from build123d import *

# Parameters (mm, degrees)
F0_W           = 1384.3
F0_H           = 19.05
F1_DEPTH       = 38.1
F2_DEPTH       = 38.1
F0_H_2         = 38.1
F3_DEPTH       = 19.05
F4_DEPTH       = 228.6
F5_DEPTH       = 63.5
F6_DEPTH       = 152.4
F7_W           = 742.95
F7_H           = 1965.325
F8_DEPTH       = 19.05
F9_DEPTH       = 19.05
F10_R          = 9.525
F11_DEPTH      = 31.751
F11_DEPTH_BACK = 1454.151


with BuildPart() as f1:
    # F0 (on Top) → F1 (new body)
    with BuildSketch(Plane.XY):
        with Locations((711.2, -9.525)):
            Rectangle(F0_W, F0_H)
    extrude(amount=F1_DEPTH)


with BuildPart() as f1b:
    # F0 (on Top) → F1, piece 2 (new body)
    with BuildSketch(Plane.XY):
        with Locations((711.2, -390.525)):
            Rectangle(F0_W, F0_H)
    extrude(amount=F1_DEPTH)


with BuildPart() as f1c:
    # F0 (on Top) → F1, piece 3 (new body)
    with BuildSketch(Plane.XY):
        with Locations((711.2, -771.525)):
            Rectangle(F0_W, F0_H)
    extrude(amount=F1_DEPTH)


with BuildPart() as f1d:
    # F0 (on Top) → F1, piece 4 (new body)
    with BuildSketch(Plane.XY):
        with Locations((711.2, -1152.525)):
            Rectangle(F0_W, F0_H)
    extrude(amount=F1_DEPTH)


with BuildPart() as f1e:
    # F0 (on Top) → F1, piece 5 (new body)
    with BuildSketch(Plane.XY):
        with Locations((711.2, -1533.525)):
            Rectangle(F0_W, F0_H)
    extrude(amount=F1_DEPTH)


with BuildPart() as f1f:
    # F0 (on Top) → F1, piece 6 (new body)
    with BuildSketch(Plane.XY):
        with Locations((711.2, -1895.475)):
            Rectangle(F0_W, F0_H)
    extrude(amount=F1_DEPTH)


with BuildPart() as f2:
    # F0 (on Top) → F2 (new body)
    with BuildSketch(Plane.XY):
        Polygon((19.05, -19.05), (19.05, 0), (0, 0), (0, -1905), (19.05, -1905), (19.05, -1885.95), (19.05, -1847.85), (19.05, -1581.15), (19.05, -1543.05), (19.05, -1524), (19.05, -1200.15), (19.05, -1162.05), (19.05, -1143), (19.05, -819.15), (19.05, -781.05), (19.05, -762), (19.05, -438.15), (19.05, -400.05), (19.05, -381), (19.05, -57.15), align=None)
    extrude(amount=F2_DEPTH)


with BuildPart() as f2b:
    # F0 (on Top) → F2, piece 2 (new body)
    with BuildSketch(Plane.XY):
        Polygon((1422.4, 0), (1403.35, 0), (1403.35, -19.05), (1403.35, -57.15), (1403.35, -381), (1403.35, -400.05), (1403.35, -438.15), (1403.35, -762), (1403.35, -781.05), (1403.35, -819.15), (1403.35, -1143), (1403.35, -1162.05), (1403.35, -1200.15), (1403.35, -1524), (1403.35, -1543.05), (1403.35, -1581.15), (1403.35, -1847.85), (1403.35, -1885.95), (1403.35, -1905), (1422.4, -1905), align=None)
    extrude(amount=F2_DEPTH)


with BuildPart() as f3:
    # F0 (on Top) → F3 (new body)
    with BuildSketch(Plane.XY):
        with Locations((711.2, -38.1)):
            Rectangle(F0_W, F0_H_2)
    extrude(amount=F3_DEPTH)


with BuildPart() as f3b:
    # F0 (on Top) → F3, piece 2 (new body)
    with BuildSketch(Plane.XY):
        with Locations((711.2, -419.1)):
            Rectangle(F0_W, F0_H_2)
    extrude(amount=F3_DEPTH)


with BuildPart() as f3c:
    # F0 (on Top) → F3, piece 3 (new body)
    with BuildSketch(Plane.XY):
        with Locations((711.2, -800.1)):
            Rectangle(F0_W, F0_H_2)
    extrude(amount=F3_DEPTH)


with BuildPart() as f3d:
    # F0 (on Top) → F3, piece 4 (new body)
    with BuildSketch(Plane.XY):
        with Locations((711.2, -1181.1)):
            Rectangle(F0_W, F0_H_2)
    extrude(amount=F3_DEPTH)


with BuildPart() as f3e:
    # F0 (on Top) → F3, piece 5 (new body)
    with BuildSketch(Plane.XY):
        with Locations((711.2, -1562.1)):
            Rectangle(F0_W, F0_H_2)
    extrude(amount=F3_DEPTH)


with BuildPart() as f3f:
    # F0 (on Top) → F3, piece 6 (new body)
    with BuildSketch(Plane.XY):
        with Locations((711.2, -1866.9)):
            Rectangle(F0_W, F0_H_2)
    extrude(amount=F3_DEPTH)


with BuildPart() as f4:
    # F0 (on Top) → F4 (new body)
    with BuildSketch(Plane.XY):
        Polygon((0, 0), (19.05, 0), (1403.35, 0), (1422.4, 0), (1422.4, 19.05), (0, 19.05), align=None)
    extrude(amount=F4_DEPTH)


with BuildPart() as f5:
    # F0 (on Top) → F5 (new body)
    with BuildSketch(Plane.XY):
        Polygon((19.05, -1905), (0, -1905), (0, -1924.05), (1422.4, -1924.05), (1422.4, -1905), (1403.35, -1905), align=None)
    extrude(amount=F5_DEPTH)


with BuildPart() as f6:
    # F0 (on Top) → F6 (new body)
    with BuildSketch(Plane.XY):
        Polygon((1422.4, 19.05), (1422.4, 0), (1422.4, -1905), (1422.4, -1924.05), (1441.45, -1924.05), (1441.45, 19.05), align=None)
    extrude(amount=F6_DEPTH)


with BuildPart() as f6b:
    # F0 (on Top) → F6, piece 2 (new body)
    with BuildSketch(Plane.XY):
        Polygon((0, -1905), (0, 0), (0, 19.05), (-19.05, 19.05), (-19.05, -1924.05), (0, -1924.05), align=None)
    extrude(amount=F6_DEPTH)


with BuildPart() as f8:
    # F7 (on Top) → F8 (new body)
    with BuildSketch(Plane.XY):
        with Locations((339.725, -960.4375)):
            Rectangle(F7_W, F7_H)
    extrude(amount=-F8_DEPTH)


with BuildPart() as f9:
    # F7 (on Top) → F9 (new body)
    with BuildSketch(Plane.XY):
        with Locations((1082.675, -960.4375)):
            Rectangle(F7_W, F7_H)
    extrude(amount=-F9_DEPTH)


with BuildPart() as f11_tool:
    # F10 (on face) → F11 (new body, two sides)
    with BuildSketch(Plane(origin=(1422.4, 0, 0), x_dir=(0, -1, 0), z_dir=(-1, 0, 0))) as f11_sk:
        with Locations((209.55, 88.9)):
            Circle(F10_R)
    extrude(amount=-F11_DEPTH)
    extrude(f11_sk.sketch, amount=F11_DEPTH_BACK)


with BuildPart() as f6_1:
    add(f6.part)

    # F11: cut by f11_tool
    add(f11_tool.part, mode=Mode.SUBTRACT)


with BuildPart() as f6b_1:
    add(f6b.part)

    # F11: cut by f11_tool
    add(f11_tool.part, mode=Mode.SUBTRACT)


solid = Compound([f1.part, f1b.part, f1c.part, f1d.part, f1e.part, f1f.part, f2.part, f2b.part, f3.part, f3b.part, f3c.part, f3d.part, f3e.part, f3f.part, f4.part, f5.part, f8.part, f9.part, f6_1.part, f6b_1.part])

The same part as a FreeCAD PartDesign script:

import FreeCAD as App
import Part
import Sketcher
from FreeCAD import Vector
Q = App.Units.Quantity

doc = App.newDocument("Part")
params = doc.addObject("Spreadsheet::Sheet", "Params")
for row, (alias, value) in enumerate([
    ("sketch1_width", "54.5 in"),
    ("sketch1_height", "0.75 in"),
    ("pad1_length", "1.5 in"),
    ("sketch2_width", "54.5 in"),
    ("sketch2_height", "0.75 in"),
    ("pad2_length", "1.5 in"),
    ("sketch3_width", "54.5 in"),
    ("sketch3_height", "0.75 in"),
    ("pad3_length", "1.5 in"),
    ("sketch4_width", "54.5 in"),
    ("sketch4_height", "0.75 in"),
    ("pad4_length", "1.5 in"),
    ("sketch5_width", "54.5 in"),
    ("sketch5_height", "0.75 in"),
    ("pad5_length", "1.5 in"),
    ("sketch6_width", "54.5 in"),
    ("sketch6_height", "0.75 in"),
    ("pad6_length", "1.5 in"),
    ("sketch7_height", "75 in"),
    ("sketch7_width", "0.75 in"),
    ("pad7_length", "1.5 in"),
    ("sketch8_height", "75 in"),
    ("sketch8_width", "0.75 in"),
    ("pad8_length", "1.5 in"),
    ("sketch9_width", "54.5 in"),
    ("sketch9_height", "1.5 in"),
    ("pad9_length", "0.75 in"),
    ("sketch10_width", "54.5 in"),
    ("sketch10_height", "1.5 in"),
    ("pad10_length", "0.75 in"),
    ("sketch11_width", "54.5 in"),
    ("sketch11_height", "1.5 in"),
    ("pad11_length", "0.75 in"),
    ("sketch12_width", "54.5 in"),
    ("sketch12_height", "1.5 in"),
    ("pad12_length", "0.75 in"),
    ("sketch13_width", "54.5 in"),
    ("sketch13_height", "1.5 in"),
    ("pad13_length", "0.75 in"),
    ("sketch14_width", "54.5 in"),
    ("sketch14_height", "1.5 in"),
    ("pad14_length", "0.75 in"),
    ("sketch15_width", "56 in"),
    ("sketch15_height", "0.75 in"),
    ("pad15_length", "9 in"),
    ("sketch16_width", "56 in"),
    ("sketch16_height", "0.75 in"),
    ("pad16_length", "2.5 in"),
    ("sketch17_height", "76.5 in"),
    ("sketch17_width", "0.75 in"),
    ("pad17_length", "6 in"),
    ("sketch18_height", "76.5 in"),
    ("sketch18_width", "0.75 in"),
    ("pad18_length", "6 in"),
    ("sketch19_width", "29.25 in"),
    ("sketch19_height", "77.375 in"),
    ("pad19_length", "0.75 in"),
    ("sketch20_width", "29.25 in"),
    ("sketch20_height", "77.375 in"),
    ("pad20_length", "0.75 in"),
    ("sketch21_diameter", "0.75 in"),
    ("pad21_length", "31.751 mm"),
    ("pad21_length2", "1454.151 mm"),
], start=1):
    params.set(f"A{row}", alias)
    params.set(f"B{row}", "=" + value)
    params.setAlias(f"B{row}", alias)

body = doc.addObject("PartDesign::Body", "Body")

# Sketch on XY plane
sketch1 = body.newObject("Sketcher::SketchObject", "Sketch")
sketch1.AttachmentSupport = (doc.getObject("XY_Plane"), [""])
sketch1.MapMode = "FlatFace"
sketch1.addGeometry(Part.LineSegment(Vector(19, 0, 0), Vector(19, -19, 0)), False)
sketch1.addGeometry(Part.LineSegment(Vector(19, -19, 0), Vector(1403, -19, 0)), False)
sketch1.addGeometry(Part.LineSegment(Vector(1403, -19, 0), Vector(1403, 0, 0)), False)
sketch1.addGeometry(Part.LineSegment(Vector(1403, 0, 0), Vector(19, 0, 0)), False)
sketch1.addConstraint(Sketcher.Constraint("Coincident", 0, 2, 1, 1))
sketch1.addConstraint(Sketcher.Constraint("Coincident", 1, 2, 2, 1))
sketch1.addConstraint(Sketcher.Constraint("Coincident", 2, 2, 3, 1))
sketch1.addConstraint(Sketcher.Constraint("Coincident", 3, 2, 0, 1))
sketch1.addConstraint(Sketcher.Constraint("Vertical", 0))
sketch1.addConstraint(Sketcher.Constraint("Horizontal", 1))
sketch1.addConstraint(Sketcher.Constraint("Vertical", 2))
sketch1.addConstraint(Sketcher.Constraint("Horizontal", 3))
sketch1.addConstraint(Sketcher.Constraint("PointOnObject", 2, 2, -1))
sketch1.addConstraint(Sketcher.Constraint("DistanceX", 1, 1, 1, 2, Q("54.5 in")))
sketch1.addConstraint(Sketcher.Constraint("DistanceY", 0, 2, 0, 1, Q("0.75 in")))
sketch1.addConstraint(Sketcher.Constraint("DistanceX", -1, 1, 0, 2, Q("0.75 in")))
sketch1.setExpression("Constraints[9]", "Params.sketch1_width")
sketch1.setExpression("Constraints[10]", "Params.sketch1_height")
pad1 = body.newObject("PartDesign::Pad", "Pad")
pad1.Profile = sketch1
pad1.setExpression("Length", "Params.pad1_length")
body2 = doc.addObject("PartDesign::Body", "Body001")

# Sketch on XY plane
sketch2 = body2.newObject("Sketcher::SketchObject", "Sketch001")
sketch2.AttachmentSupport = (doc.getObject("XY_Plane001"), [""])
sketch2.MapMode = "FlatFace"
sketch2.addGeometry(Part.LineSegment(Vector(19, -381, 0), Vector(19, -400, 0)), False)
sketch2.addGeometry(Part.LineSegment(Vector(19, -400, 0), Vector(1403, -400, 0)), False)
sketch2.addGeometry(Part.LineSegment(Vector(1403, -400, 0), Vector(1403, -381, 0)), False)
sketch2.addGeometry(Part.LineSegment(Vector(1403, -381, 0), Vector(19, -381, 0)), False)
sketch2.addConstraint(Sketcher.Constraint("Coincident", 0, 2, 1, 1))
sketch2.addConstraint(Sketcher.Constraint("Coincident", 1, 2, 2, 1))
sketch2.addConstraint(Sketcher.Constraint("Coincident", 2, 2, 3, 1))
sketch2.addConstraint(Sketcher.Constraint("Coincident", 3, 2, 0, 1))
sketch2.addConstraint(Sketcher.Constraint("Vertical", 0))
sketch2.addConstraint(Sketcher.Constraint("Horizontal", 1))
sketch2.addConstraint(Sketcher.Constraint("Vertical", 2))
sketch2.addConstraint(Sketcher.Constraint("Horizontal", 3))
sketch2.addConstraint(Sketcher.Constraint("DistanceX", 1, 1, 1, 2, Q("54.5 in")))
sketch2.addConstraint(Sketcher.Constraint("DistanceY", 2, 2, -1, 1, Q("15 in")))
sketch2.addConstraint(Sketcher.Constraint("DistanceY", 0, 2, 0, 1, Q("0.75 in")))
sketch2.addConstraint(Sketcher.Constraint("DistanceX", -1, 1, 0, 2, Q("0.75 in")))
sketch2.setExpression("Constraints[8]", "Params.sketch2_width")
sketch2.setExpression("Constraints[10]", "Params.sketch2_height")
pad2 = body2.newObject("PartDesign::Pad", "Pad001")
pad2.Profile = sketch2
pad2.setExpression("Length", "Params.pad2_length")
body3 = doc.addObject("PartDesign::Body", "Body002")

# Sketch on XY plane
sketch3 = body3.newObject("Sketcher::SketchObject", "Sketch002")
sketch3.AttachmentSupport = (doc.getObject("XY_Plane002"), [""])
sketch3.MapMode = "FlatFace"
sketch3.addGeometry(Part.LineSegment(Vector(19, -762, 0), Vector(19, -781, 0)), False)
sketch3.addGeometry(Part.LineSegment(Vector(19, -781, 0), Vector(1403, -781, 0)), False)
sketch3.addGeometry(Part.LineSegment(Vector(1403, -781, 0), Vector(1403, -762, 0)), False)
sketch3.addGeometry(Part.LineSegment(Vector(1403, -762, 0), Vector(19, -762, 0)), False)
sketch3.addConstraint(Sketcher.Constraint("Coincident", 0, 2, 1, 1))
sketch3.addConstraint(Sketcher.Constraint("Coincident", 1, 2, 2, 1))
sketch3.addConstraint(Sketcher.Constraint("Coincident", 2, 2, 3, 1))
sketch3.addConstraint(Sketcher.Constraint("Coincident", 3, 2, 0, 1))
sketch3.addConstraint(Sketcher.Constraint("Vertical", 0))
sketch3.addConstraint(Sketcher.Constraint("Horizontal", 1))
sketch3.addConstraint(Sketcher.Constraint("Vertical", 2))
sketch3.addConstraint(Sketcher.Constraint("Horizontal", 3))
sketch3.addConstraint(Sketcher.Constraint("DistanceX", 1, 1, 1, 2, Q("54.5 in")))
sketch3.addConstraint(Sketcher.Constraint("DistanceY", 2, 2, -1, 1, Q("30 in")))
sketch3.addConstraint(Sketcher.Constraint("DistanceY", 0, 2, 0, 1, Q("0.75 in")))
sketch3.addConstraint(Sketcher.Constraint("DistanceX", -1, 1, 0, 2, Q("0.75 in")))
sketch3.setExpression("Constraints[8]", "Params.sketch3_width")
sketch3.setExpression("Constraints[10]", "Params.sketch3_height")
pad3 = body3.newObject("PartDesign::Pad", "Pad002")
pad3.Profile = sketch3
pad3.setExpression("Length", "Params.pad3_length")
body4 = doc.addObject("PartDesign::Body", "Body003")

# Sketch on XY plane
sketch4 = body4.newObject("Sketcher::SketchObject", "Sketch003")
sketch4.AttachmentSupport = (doc.getObject("XY_Plane003"), [""])
sketch4.MapMode = "FlatFace"
sketch4.addGeometry(Part.LineSegment(Vector(19, -1143, 0), Vector(19, -1162, 0)), False)
sketch4.addGeometry(Part.LineSegment(Vector(19, -1162, 0), Vector(1403, -1162, 0)), False)
sketch4.addGeometry(Part.LineSegment(Vector(1403, -1162, 0), Vector(1403, -1143, 0)), False)
sketch4.addGeometry(Part.LineSegment(Vector(1403, -1143, 0), Vector(19, -1143, 0)), False)
sketch4.addConstraint(Sketcher.Constraint("Coincident", 0, 2, 1, 1))
sketch4.addConstraint(Sketcher.Constraint("Coincident", 1, 2, 2, 1))
sketch4.addConstraint(Sketcher.Constraint("Coincident", 2, 2, 3, 1))
sketch4.addConstraint(Sketcher.Constraint("Coincident", 3, 2, 0, 1))
sketch4.addConstraint(Sketcher.Constraint("Vertical", 0))
sketch4.addConstraint(Sketcher.Constraint("Horizontal", 1))
sketch4.addConstraint(Sketcher.Constraint("Vertical", 2))
sketch4.addConstraint(Sketcher.Constraint("Horizontal", 3))
sketch4.addConstraint(Sketcher.Constraint("DistanceX", 1, 1, 1, 2, Q("54.5 in")))
sketch4.addConstraint(Sketcher.Constraint("DistanceY", 2, 2, -1, 1, Q("45 in")))
sketch4.addConstraint(Sketcher.Constraint("DistanceY", 0, 2, 0, 1, Q("0.75 in")))
sketch4.addConstraint(Sketcher.Constraint("DistanceX", -1, 1, 0, 2, Q("0.75 in")))
sketch4.setExpression("Constraints[8]", "Params.sketch4_width")
sketch4.setExpression("Constraints[10]", "Params.sketch4_height")
pad4 = body4.newObject("PartDesign::Pad", "Pad003")
pad4.Profile = sketch4
pad4.setExpression("Length", "Params.pad4_length")
body5 = doc.addObject("PartDesign::Body", "Body004")

# Sketch on XY plane
sketch5 = body5.newObject("Sketcher::SketchObject", "Sketch004")
sketch5.AttachmentSupport = (doc.getObject("XY_Plane004"), [""])
sketch5.MapMode = "FlatFace"
sketch5.addGeometry(Part.LineSegment(Vector(19, -1524, 0), Vector(19, -1543, 0)), False)
sketch5.addGeometry(Part.LineSegment(Vector(19, -1543, 0), Vector(1403, -1543, 0)), False)
sketch5.addGeometry(Part.LineSegment(Vector(1403, -1543, 0), Vector(1403, -1524, 0)), False)
sketch5.addGeometry(Part.LineSegment(Vector(1403, -1524, 0), Vector(19, -1524, 0)), False)
sketch5.addConstraint(Sketcher.Constraint("Coincident", 0, 2, 1, 1))
sketch5.addConstraint(Sketcher.Constraint("Coincident", 1, 2, 2, 1))
sketch5.addConstraint(Sketcher.Constraint("Coincident", 2, 2, 3, 1))
sketch5.addConstraint(Sketcher.Constraint("Coincident", 3, 2, 0, 1))
sketch5.addConstraint(Sketcher.Constraint("Vertical", 0))
sketch5.addConstraint(Sketcher.Constraint("Horizontal", 1))
sketch5.addConstraint(Sketcher.Constraint("Vertical", 2))
sketch5.addConstraint(Sketcher.Constraint("Horizontal", 3))
sketch5.addConstraint(Sketcher.Constraint("DistanceX", 1, 1, 1, 2, Q("54.5 in")))
sketch5.addConstraint(Sketcher.Constraint("DistanceY", 2, 2, -1, 1, Q("60 in")))
sketch5.addConstraint(Sketcher.Constraint("DistanceY", 0, 2, 0, 1, Q("0.75 in")))
sketch5.addConstraint(Sketcher.Constraint("DistanceX", -1, 1, 0, 2, Q("0.75 in")))
sketch5.setExpression("Constraints[8]", "Params.sketch5_width")
sketch5.setExpression("Constraints[10]", "Params.sketch5_height")
pad5 = body5.newObject("PartDesign::Pad", "Pad004")
pad5.Profile = sketch5
pad5.setExpression("Length", "Params.pad5_length")
body6 = doc.addObject("PartDesign::Body", "Body005")

# Sketch on XY plane
sketch6 = body6.newObject("Sketcher::SketchObject", "Sketch005")
sketch6.AttachmentSupport = (doc.getObject("XY_Plane005"), [""])
sketch6.MapMode = "FlatFace"
sketch6.addGeometry(Part.LineSegment(Vector(19, -1886, 0), Vector(19, -1905, 0)), False)
sketch6.addGeometry(Part.LineSegment(Vector(19, -1905, 0), Vector(1403, -1905, 0)), False)
sketch6.addGeometry(Part.LineSegment(Vector(1403, -1905, 0), Vector(1403, -1886, 0)), False)
sketch6.addGeometry(Part.LineSegment(Vector(1403, -1886, 0), Vector(19, -1886, 0)), False)
sketch6.addConstraint(Sketcher.Constraint("Coincident", 0, 2, 1, 1))
sketch6.addConstraint(Sketcher.Constraint("Coincident", 1, 2, 2, 1))
sketch6.addConstraint(Sketcher.Constraint("Coincident", 2, 2, 3, 1))
sketch6.addConstraint(Sketcher.Constraint("Coincident", 3, 2, 0, 1))
sketch6.addConstraint(Sketcher.Constraint("Vertical", 0))
sketch6.addConstraint(Sketcher.Constraint("Horizontal", 1))
sketch6.addConstraint(Sketcher.Constraint("Vertical", 2))
sketch6.addConstraint(Sketcher.Constraint("Horizontal", 3))
sketch6.addConstraint(Sketcher.Constraint("DistanceX", 1, 1, 1, 2, Q("54.5 in")))
sketch6.addConstraint(Sketcher.Constraint("DistanceY", 0, 2, -1, 1, Q("75 in")))
sketch6.addConstraint(Sketcher.Constraint("DistanceY", 0, 2, 0, 1, Q("0.75 in")))
sketch6.addConstraint(Sketcher.Constraint("DistanceX", -1, 1, 0, 2, Q("0.75 in")))
sketch6.setExpression("Constraints[8]", "Params.sketch6_width")
sketch6.setExpression("Constraints[10]", "Params.sketch6_height")
pad6 = body6.newObject("PartDesign::Pad", "Pad005")
pad6.Profile = sketch6
pad6.setExpression("Length", "Params.pad6_length")
body7 = doc.addObject("PartDesign::Body", "Body006")

# Sketch on XY plane
sketch7 = body7.newObject("Sketcher::SketchObject", "Sketch006")
sketch7.AttachmentSupport = (doc.getObject("XY_Plane006"), [""])
sketch7.MapMode = "FlatFace"
sketch7.addGeometry(Part.LineSegment(Vector(19, 0, 0), Vector(0, 0, 0)), False)
sketch7.addGeometry(Part.LineSegment(Vector(0, 0, 0), Vector(0, -1905, 0)), False)
sketch7.addGeometry(Part.LineSegment(Vector(0, -1905, 0), Vector(19, -1905, 0)), False)
sketch7.addGeometry(Part.LineSegment(Vector(19, -1905, 0), Vector(19, 0, 0)), False)
sketch7.addConstraint(Sketcher.Constraint("Coincident", 0, 2, 1, 1))
sketch7.addConstraint(Sketcher.Constraint("Coincident", 1, 2, 2, 1))
sketch7.addConstraint(Sketcher.Constraint("Coincident", 2, 2, 3, 1))
sketch7.addConstraint(Sketcher.Constraint("Coincident", 3, 2, 0, 1))
sketch7.addConstraint(Sketcher.Constraint("Horizontal", 0))
sketch7.addConstraint(Sketcher.Constraint("Vertical", 1))
sketch7.addConstraint(Sketcher.Constraint("Horizontal", 2))
sketch7.addConstraint(Sketcher.Constraint("Vertical", 3))
sketch7.addConstraint(Sketcher.Constraint("Coincident", 0, 2, -1, 1))
sketch7.addConstraint(Sketcher.Constraint("DistanceY", 1, 2, 1, 1, Q("75 in")))
sketch7.addConstraint(Sketcher.Constraint("DistanceX", 0, 2, 0, 1, Q("0.75 in")))
sketch7.setExpression("Constraints[9]", "Params.sketch7_height")
sketch7.setExpression("Constraints[10]", "Params.sketch7_width")
pad7 = body7.newObject("PartDesign::Pad", "Pad006")
pad7.Profile = sketch7
pad7.setExpression("Length", "Params.pad7_length")
body8 = doc.addObject("PartDesign::Body", "Body007")

# Sketch on XY plane
sketch8 = body8.newObject("Sketcher::SketchObject", "Sketch007")
sketch8.AttachmentSupport = (doc.getObject("XY_Plane007"), [""])
sketch8.MapMode = "FlatFace"
sketch8.addGeometry(Part.LineSegment(Vector(1422, 0, 0), Vector(1403, 0, 0)), False)
sketch8.addGeometry(Part.LineSegment(Vector(1403, 0, 0), Vector(1403, -1905, 0)), False)
sketch8.addGeometry(Part.LineSegment(Vector(1403, -1905, 0), Vector(1422, -1905, 0)), False)
sketch8.addGeometry(Part.LineSegment(Vector(1422, -1905, 0), Vector(1422, 0, 0)), False)
sketch8.addConstraint(Sketcher.Constraint("Coincident", 0, 2, 1, 1))
sketch8.addConstraint(Sketcher.Constraint("Coincident", 1, 2, 2, 1))
sketch8.addConstraint(Sketcher.Constraint("Coincident", 2, 2, 3, 1))
sketch8.addConstraint(Sketcher.Constraint("Coincident", 3, 2, 0, 1))
sketch8.addConstraint(Sketcher.Constraint("Horizontal", 0))
sketch8.addConstraint(Sketcher.Constraint("Vertical", 1))
sketch8.addConstraint(Sketcher.Constraint("Horizontal", 2))
sketch8.addConstraint(Sketcher.Constraint("Vertical", 3))
sketch8.addConstraint(Sketcher.Constraint("PointOnObject", 0, 2, -1))
sketch8.addConstraint(Sketcher.Constraint("DistanceY", 1, 2, 1, 1, Q("75 in")))
sketch8.addConstraint(Sketcher.Constraint("DistanceX", -1, 1, 2, 2, Q("56 in")))
sketch8.addConstraint(Sketcher.Constraint("DistanceX", 0, 2, 0, 1, Q("0.75 in")))
sketch8.setExpression("Constraints[9]", "Params.sketch8_height")
sketch8.setExpression("Constraints[11]", "Params.sketch8_width")
pad8 = body8.newObject("PartDesign::Pad", "Pad007")
pad8.Profile = sketch8
pad8.setExpression("Length", "Params.pad8_length")
body9 = doc.addObject("PartDesign::Body", "Body008")

# Sketch on XY plane
sketch9 = body9.newObject("Sketcher::SketchObject", "Sketch008")
sketch9.AttachmentSupport = (doc.getObject("XY_Plane008"), [""])
sketch9.MapMode = "FlatFace"
sketch9.addGeometry(Part.LineSegment(Vector(19, -19, 0), Vector(19, -57, 0)), False)
sketch9.addGeometry(Part.LineSegment(Vector(19, -57, 0), Vector(1403, -57, 0)), False)
sketch9.addGeometry(Part.LineSegment(Vector(1403, -57, 0), Vector(1403, -19, 0)), False)
sketch9.addGeometry(Part.LineSegment(Vector(1403, -19, 0), Vector(19, -19, 0)), False)
sketch9.addConstraint(Sketcher.Constraint("Coincident", 0, 2, 1, 1))
sketch9.addConstraint(Sketcher.Constraint("Coincident", 1, 2, 2, 1))
sketch9.addConstraint(Sketcher.Constraint("Coincident", 2, 2, 3, 1))
sketch9.addConstraint(Sketcher.Constraint("Coincident", 3, 2, 0, 1))
sketch9.addConstraint(Sketcher.Constraint("Vertical", 0))
sketch9.addConstraint(Sketcher.Constraint("Horizontal", 1))
sketch9.addConstraint(Sketcher.Constraint("Vertical", 2))
sketch9.addConstraint(Sketcher.Constraint("Horizontal", 3))
sketch9.addConstraint(Sketcher.Constraint("DistanceX", 1, 1, 1, 2, Q("54.5 in")))
sketch9.addConstraint(Sketcher.Constraint("DistanceY", 0, 2, 0, 1, Q("1.5 in")))
sketch9.addConstraint(Sketcher.Constraint("DistanceX", -1, 1, 0, 2, Q("0.75 in")))
sketch9.addConstraint(Sketcher.Constraint("DistanceY", 0, 2, -1, 1, Q("2.25 in")))
sketch9.setExpression("Constraints[8]", "Params.sketch9_width")
sketch9.setExpression("Constraints[9]", "Params.sketch9_height")
pad9 = body9.newObject("PartDesign::Pad", "Pad008")
pad9.Profile = sketch9
pad9.setExpression("Length", "Params.pad9_length")
body10 = doc.addObject("PartDesign::Body", "Body009")

# Sketch on XY plane
sketch10 = body10.newObject("Sketcher::SketchObject", "Sketch009")
sketch10.AttachmentSupport = (doc.getObject("XY_Plane009"), [""])
sketch10.MapMode = "FlatFace"
sketch10.addGeometry(Part.LineSegment(Vector(19, -400, 0), Vector(19, -438, 0)), False)
sketch10.addGeometry(Part.LineSegment(Vector(19, -438, 0), Vector(1403, -438, 0)), False)
sketch10.addGeometry(Part.LineSegment(Vector(1403, -438, 0), Vector(1403, -400, 0)), False)
sketch10.addGeometry(Part.LineSegment(Vector(1403, -400, 0), Vector(19, -400, 0)), False)
sketch10.addConstraint(Sketcher.Constraint("Coincident", 0, 2, 1, 1))
sketch10.addConstraint(Sketcher.Constraint("Coincident", 1, 2, 2, 1))
sketch10.addConstraint(Sketcher.Constraint("Coincident", 2, 2, 3, 1))
sketch10.addConstraint(Sketcher.Constraint("Coincident", 3, 2, 0, 1))
sketch10.addConstraint(Sketcher.Constraint("Vertical", 0))
sketch10.addConstraint(Sketcher.Constraint("Horizontal", 1))
sketch10.addConstraint(Sketcher.Constraint("Vertical", 2))
sketch10.addConstraint(Sketcher.Constraint("Horizontal", 3))
sketch10.addConstraint(Sketcher.Constraint("DistanceX", 1, 1, 1, 2, Q("54.5 in")))
sketch10.addConstraint(Sketcher.Constraint("DistanceY", 0, 2, 0, 1, Q("1.5 in")))
sketch10.addConstraint(Sketcher.Constraint("DistanceX", -1, 1, 0, 2, Q("0.75 in")))
sketch10.addConstraint(Sketcher.Constraint("DistanceY", 0, 2, -1, 1, Q("17.25 in")))
sketch10.setExpression("Constraints[8]", "Params.sketch10_width")
sketch10.setExpression("Constraints[9]", "Params.sketch10_height")
pad10 = body10.newObject("PartDesign::Pad", "Pad009")
pad10.Profile = sketch10
pad10.setExpression("Length", "Params.pad10_length")
body11 = doc.addObject("PartDesign::Body", "Body010")

# Sketch on XY plane
sketch11 = body11.newObject("Sketcher::SketchObject", "Sketch010")
sketch11.AttachmentSupport = (doc.getObject("XY_Plane010"), [""])
sketch11.MapMode = "FlatFace"
sketch11.addGeometry(Part.LineSegment(Vector(19, -781, 0), Vector(19, -819, 0)), False)
sketch11.addGeometry(Part.LineSegment(Vector(19, -819, 0), Vector(1403, -819, 0)), False)
sketch11.addGeometry(Part.LineSegment(Vector(1403, -819, 0), Vector(1403, -781, 0)), False)
sketch11.addGeometry(Part.LineSegment(Vector(1403, -781, 0), Vector(19, -781, 0)), False)
sketch11.addConstraint(Sketcher.Constraint("Coincident", 0, 2, 1, 1))
sketch11.addConstraint(Sketcher.Constraint("Coincident", 1, 2, 2, 1))
sketch11.addConstraint(Sketcher.Constraint("Coincident", 2, 2, 3, 1))
sketch11.addConstraint(Sketcher.Constraint("Coincident", 3, 2, 0, 1))
sketch11.addConstraint(Sketcher.Constraint("Vertical", 0))
sketch11.addConstraint(Sketcher.Constraint("Horizontal", 1))
sketch11.addConstraint(Sketcher.Constraint("Vertical", 2))
sketch11.addConstraint(Sketcher.Constraint("Horizontal", 3))
sketch11.addConstraint(Sketcher.Constraint("DistanceX", 1, 1, 1, 2, Q("54.5 in")))
sketch11.addConstraint(Sketcher.Constraint("DistanceY", 0, 2, 0, 1, Q("1.5 in")))
sketch11.addConstraint(Sketcher.Constraint("DistanceX", -1, 1, 0, 2, Q("0.75 in")))
sketch11.addConstraint(Sketcher.Constraint("DistanceY", 0, 2, -1, 1, Q("32.25 in")))
sketch11.setExpression("Constraints[8]", "Params.sketch11_width")
sketch11.setExpression("Constraints[9]", "Params.sketch11_height")
pad11 = body11.newObject("PartDesign::Pad", "Pad010")
pad11.Profile = sketch11
pad11.setExpression("Length", "Params.pad11_length")
body12 = doc.addObject("PartDesign::Body", "Body011")

# Sketch on XY plane
sketch12 = body12.newObject("Sketcher::SketchObject", "Sketch011")
sketch12.AttachmentSupport = (doc.getObject("XY_Plane011"), [""])
sketch12.MapMode = "FlatFace"
sketch12.addGeometry(Part.LineSegment(Vector(19, -1162, 0), Vector(19, -1200, 0)), False)
sketch12.addGeometry(Part.LineSegment(Vector(19, -1200, 0), Vector(1403, -1200, 0)), False)
sketch12.addGeometry(Part.LineSegment(Vector(1403, -1200, 0), Vector(1403, -1162, 0)), False)
sketch12.addGeometry(Part.LineSegment(Vector(1403, -1162, 0), Vector(19, -1162, 0)), False)
sketch12.addConstraint(Sketcher.Constraint("Coincident", 0, 2, 1, 1))
sketch12.addConstraint(Sketcher.Constraint("Coincident", 1, 2, 2, 1))
sketch12.addConstraint(Sketcher.Constraint("Coincident", 2, 2, 3, 1))
sketch12.addConstraint(Sketcher.Constraint("Coincident", 3, 2, 0, 1))
sketch12.addConstraint(Sketcher.Constraint("Vertical", 0))
sketch12.addConstraint(Sketcher.Constraint("Horizontal", 1))
sketch12.addConstraint(Sketcher.Constraint("Vertical", 2))
sketch12.addConstraint(Sketcher.Constraint("Horizontal", 3))
sketch12.addConstraint(Sketcher.Constraint("DistanceX", 1, 1, 1, 2, Q("54.5 in")))
sketch12.addConstraint(Sketcher.Constraint("DistanceY", 0, 2, 0, 1, Q("1.5 in")))
sketch12.addConstraint(Sketcher.Constraint("DistanceX", -1, 1, 0, 2, Q("0.75 in")))
sketch12.addConstraint(Sketcher.Constraint("DistanceY", 0, 2, -1, 1, Q("47.25 in")))
sketch12.setExpression("Constraints[8]", "Params.sketch12_width")
sketch12.setExpression("Constraints[9]", "Params.sketch12_height")
pad12 = body12.newObject("PartDesign::Pad", "Pad011")
pad12.Profile = sketch12
pad12.setExpression("Length", "Params.pad12_length")
body13 = doc.addObject("PartDesign::Body", "Body012")

# Sketch on XY plane
sketch13 = body13.newObject("Sketcher::SketchObject", "Sketch012")
sketch13.AttachmentSupport = (doc.getObject("XY_Plane012"), [""])
sketch13.MapMode = "FlatFace"
sketch13.addGeometry(Part.LineSegment(Vector(19, -1543, 0), Vector(19, -1581, 0)), False)
sketch13.addGeometry(Part.LineSegment(Vector(19, -1581, 0), Vector(1403, -1581, 0)), False)
sketch13.addGeometry(Part.LineSegment(Vector(1403, -1581, 0), Vector(1403, -1543, 0)), False)
sketch13.addGeometry(Part.LineSegment(Vector(1403, -1543, 0), Vector(19, -1543, 0)), False)
sketch13.addConstraint(Sketcher.Constraint("Coincident", 0, 2, 1, 1))
sketch13.addConstraint(Sketcher.Constraint("Coincident", 1, 2, 2, 1))
sketch13.addConstraint(Sketcher.Constraint("Coincident", 2, 2, 3, 1))
sketch13.addConstraint(Sketcher.Constraint("Coincident", 3, 2, 0, 1))
sketch13.addConstraint(Sketcher.Constraint("Vertical", 0))
sketch13.addConstraint(Sketcher.Constraint("Horizontal", 1))
sketch13.addConstraint(Sketcher.Constraint("Vertical", 2))
sketch13.addConstraint(Sketcher.Constraint("Horizontal", 3))
sketch13.addConstraint(Sketcher.Constraint("DistanceX", 1, 1, 1, 2, Q("54.5 in")))
sketch13.addConstraint(Sketcher.Constraint("DistanceY", 0, 2, 0, 1, Q("1.5 in")))
sketch13.addConstraint(Sketcher.Constraint("DistanceX", -1, 1, 0, 2, Q("0.75 in")))
sketch13.addConstraint(Sketcher.Constraint("DistanceY", 0, 2, -1, 1, Q("62.25 in")))
sketch13.setExpression("Constraints[8]", "Params.sketch13_width")
sketch13.setExpression("Constraints[9]", "Params.sketch13_height")
pad13 = body13.newObject("PartDesign::Pad", "Pad012")
pad13.Profile = sketch13
pad13.setExpression("Length", "Params.pad13_length")
body14 = doc.addObject("PartDesign::Body", "Body013")

# Sketch on XY plane
sketch14 = body14.newObject("Sketcher::SketchObject", "Sketch013")
sketch14.AttachmentSupport = (doc.getObject("XY_Plane013"), [""])
sketch14.MapMode = "FlatFace"
sketch14.addGeometry(Part.LineSegment(Vector(19, -1848, 0), Vector(19, -1886, 0)), False)
sketch14.addGeometry(Part.LineSegment(Vector(19, -1886, 0), Vector(1403, -1886, 0)), False)
sketch14.addGeometry(Part.LineSegment(Vector(1403, -1886, 0), Vector(1403, -1848, 0)), False)
sketch14.addGeometry(Part.LineSegment(Vector(1403, -1848, 0), Vector(19, -1848, 0)), False)
sketch14.addConstraint(Sketcher.Constraint("Coincident", 0, 2, 1, 1))
sketch14.addConstraint(Sketcher.Constraint("Coincident", 1, 2, 2, 1))
sketch14.addConstraint(Sketcher.Constraint("Coincident", 2, 2, 3, 1))
sketch14.addConstraint(Sketcher.Constraint("Coincident", 3, 2, 0, 1))
sketch14.addConstraint(Sketcher.Constraint("Vertical", 0))
sketch14.addConstraint(Sketcher.Constraint("Horizontal", 1))
sketch14.addConstraint(Sketcher.Constraint("Vertical", 2))
sketch14.addConstraint(Sketcher.Constraint("Horizontal", 3))
sketch14.addConstraint(Sketcher.Constraint("DistanceX", 1, 1, 1, 2, Q("54.5 in")))
sketch14.addConstraint(Sketcher.Constraint("DistanceY", 0, 2, 0, 1, Q("1.5 in")))
sketch14.addConstraint(Sketcher.Constraint("DistanceX", -1, 1, 0, 2, Q("0.75 in")))
sketch14.addConstraint(Sketcher.Constraint("DistanceY", 0, 2, -1, 1, Q("74.25 in")))
sketch14.setExpression("Constraints[8]", "Params.sketch14_width")
sketch14.setExpression("Constraints[9]", "Params.sketch14_height")
pad14 = body14.newObject("PartDesign::Pad", "Pad013")
pad14.Profile = sketch14
pad14.setExpression("Length", "Params.pad14_length")
body15 = doc.addObject("PartDesign::Body", "Body014")

# Sketch on XY plane
sketch15 = body15.newObject("Sketcher::SketchObject", "Sketch014")
sketch15.AttachmentSupport = (doc.getObject("XY_Plane014"), [""])
sketch15.MapMode = "FlatFace"
sketch15.addGeometry(Part.LineSegment(Vector(0, 0, 0), Vector(1422, 0, 0)), False)
sketch15.addGeometry(Part.LineSegment(Vector(1422, 0, 0), Vector(1422, 19, 0)), False)
sketch15.addGeometry(Part.LineSegment(Vector(1422, 19, 0), Vector(0, 19, 0)), False)
sketch15.addGeometry(Part.LineSegment(Vector(0, 19, 0), Vector(0, 0, 0)), False)
sketch15.addConstraint(Sketcher.Constraint("Coincident", 0, 2, 1, 1))
sketch15.addConstraint(Sketcher.Constraint("Coincident", 1, 2, 2, 1))
sketch15.addConstraint(Sketcher.Constraint("Coincident", 2, 2, 3, 1))
sketch15.addConstraint(Sketcher.Constraint("Coincident", 3, 2, 0, 1))
sketch15.addConstraint(Sketcher.Constraint("Horizontal", 0))
sketch15.addConstraint(Sketcher.Constraint("Vertical", 1))
sketch15.addConstraint(Sketcher.Constraint("Horizontal", 2))
sketch15.addConstraint(Sketcher.Constraint("Vertical", 3))
sketch15.addConstraint(Sketcher.Constraint("Coincident", 3, 2, -1, 1))
sketch15.addConstraint(Sketcher.Constraint("DistanceX", 0, 1, 0, 2, Q("56 in")))
sketch15.addConstraint(Sketcher.Constraint("DistanceY", 1, 1, 1, 2, Q("0.75 in")))
sketch15.setExpression("Constraints[9]", "Params.sketch15_width")
sketch15.setExpression("Constraints[10]", "Params.sketch15_height")
pad15 = body15.newObject("PartDesign::Pad", "Pad014")
pad15.Profile = sketch15
pad15.setExpression("Length", "Params.pad15_length")
body16 = doc.addObject("PartDesign::Body", "Body015")

# Sketch on XY plane
sketch16 = body16.newObject("Sketcher::SketchObject", "Sketch015")
sketch16.AttachmentSupport = (doc.getObject("XY_Plane015"), [""])
sketch16.MapMode = "FlatFace"
sketch16.addGeometry(Part.LineSegment(Vector(0, -1905, 0), Vector(0, -1924, 0)), False)
sketch16.addGeometry(Part.LineSegment(Vector(0, -1924, 0), Vector(1422, -1924, 0)), False)
sketch16.addGeometry(Part.LineSegment(Vector(1422, -1924, 0), Vector(1422, -1905, 0)), False)
sketch16.addGeometry(Part.LineSegment(Vector(1422, -1905, 0), Vector(0, -1905, 0)), False)
sketch16.addConstraint(Sketcher.Constraint("Coincident", 0, 2, 1, 1))
sketch16.addConstraint(Sketcher.Constraint("Coincident", 1, 2, 2, 1))
sketch16.addConstraint(Sketcher.Constraint("Coincident", 2, 2, 3, 1))
sketch16.addConstraint(Sketcher.Constraint("Coincident", 3, 2, 0, 1))
sketch16.addConstraint(Sketcher.Constraint("Vertical", 0))
sketch16.addConstraint(Sketcher.Constraint("Horizontal", 1))
sketch16.addConstraint(Sketcher.Constraint("Vertical", 2))
sketch16.addConstraint(Sketcher.Constraint("Horizontal", 3))
sketch16.addConstraint(Sketcher.Constraint("PointOnObject", 0, 2, -2))
sketch16.addConstraint(Sketcher.Constraint("DistanceX", 1, 1, 1, 2, Q("56 in")))
sketch16.addConstraint(Sketcher.Constraint("DistanceY", 2, 2, -1, 1, Q("75 in")))
sketch16.addConstraint(Sketcher.Constraint("DistanceY", 0, 2, 0, 1, Q("0.75 in")))
sketch16.setExpression("Constraints[9]", "Params.sketch16_width")
sketch16.setExpression("Constraints[11]", "Params.sketch16_height")
pad16 = body16.newObject("PartDesign::Pad", "Pad015")
pad16.Profile = sketch16
pad16.setExpression("Length", "Params.pad16_length")
body17 = doc.addObject("PartDesign::Body", "Body016")

# Sketch on XY plane
sketch17 = body17.newObject("Sketcher::SketchObject", "Sketch016")
sketch17.AttachmentSupport = (doc.getObject("XY_Plane016"), [""])
sketch17.MapMode = "FlatFace"
sketch17.addGeometry(Part.LineSegment(Vector(1422, 19, 0), Vector(1422, -1924, 0)), False)
sketch17.addGeometry(Part.LineSegment(Vector(1422, -1924, 0), Vector(1441, -1924, 0)), False)
sketch17.addGeometry(Part.LineSegment(Vector(1441, -1924, 0), Vector(1441, 19, 0)), False)
sketch17.addGeometry(Part.LineSegment(Vector(1441, 19, 0), Vector(1422, 19, 0)), False)
sketch17.addConstraint(Sketcher.Constraint("Coincident", 0, 2, 1, 1))
sketch17.addConstraint(Sketcher.Constraint("Coincident", 1, 2, 2, 1))
sketch17.addConstraint(Sketcher.Constraint("Coincident", 2, 2, 3, 1))
sketch17.addConstraint(Sketcher.Constraint("Coincident", 3, 2, 0, 1))
sketch17.addConstraint(Sketcher.Constraint("Vertical", 0))
sketch17.addConstraint(Sketcher.Constraint("Horizontal", 1))
sketch17.addConstraint(Sketcher.Constraint("Vertical", 2))
sketch17.addConstraint(Sketcher.Constraint("Horizontal", 3))
sketch17.addConstraint(Sketcher.Constraint("DistanceY", 0, 2, 0, 1, Q("76.5 in")))
sketch17.addConstraint(Sketcher.Constraint("DistanceX", -1, 1, 0, 2, Q("56 in")))
sketch17.addConstraint(Sketcher.Constraint("DistanceX", 1, 1, 1, 2, Q("0.75 in")))
sketch17.addConstraint(Sketcher.Constraint("DistanceY", 0, 2, -1, 1, Q("75.75 in")))
sketch17.setExpression("Constraints[8]", "Params.sketch17_height")
sketch17.setExpression("Constraints[10]", "Params.sketch17_width")
pad17 = body17.newObject("PartDesign::Pad", "Pad016")
pad17.Profile = sketch17
pad17.setExpression("Length", "Params.pad17_length")
body18 = doc.addObject("PartDesign::Body", "Body017")

# Sketch on XY plane
sketch18 = body18.newObject("Sketcher::SketchObject", "Sketch017")
sketch18.AttachmentSupport = (doc.getObject("XY_Plane017"), [""])
sketch18.MapMode = "FlatFace"
sketch18.addGeometry(Part.LineSegment(Vector(0, 19, 0), Vector(-19, 19, 0)), False)
sketch18.addGeometry(Part.LineSegment(Vector(-19, 19, 0), Vector(-19, -1924, 0)), False)
sketch18.addGeometry(Part.LineSegment(Vector(-19, -1924, 0), Vector(0, -1924, 0)), False)
sketch18.addGeometry(Part.LineSegment(Vector(0, -1924, 0), Vector(0, 19, 0)), False)
sketch18.addConstraint(Sketcher.Constraint("Coincident", 0, 2, 1, 1))
sketch18.addConstraint(Sketcher.Constraint("Coincident", 1, 2, 2, 1))
sketch18.addConstraint(Sketcher.Constraint("Coincident", 2, 2, 3, 1))
sketch18.addConstraint(Sketcher.Constraint("Coincident", 3, 2, 0, 1))
sketch18.addConstraint(Sketcher.Constraint("Horizontal", 0))
sketch18.addConstraint(Sketcher.Constraint("Vertical", 1))
sketch18.addConstraint(Sketcher.Constraint("Horizontal", 2))
sketch18.addConstraint(Sketcher.Constraint("Vertical", 3))
sketch18.addConstraint(Sketcher.Constraint("PointOnObject", 2, 2, -2))
sketch18.addConstraint(Sketcher.Constraint("DistanceY", 1, 2, 1, 1, Q("76.5 in")))
sketch18.addConstraint(Sketcher.Constraint("DistanceX", 0, 2, 0, 1, Q("0.75 in")))
sketch18.addConstraint(Sketcher.Constraint("DistanceY", -1, 1, 0, 2, Q("0.75 in")))
sketch18.setExpression("Constraints[9]", "Params.sketch18_height")
sketch18.setExpression("Constraints[10]", "Params.sketch18_width")
pad18 = body18.newObject("PartDesign::Pad", "Pad017")
pad18.Profile = sketch18
pad18.setExpression("Length", "Params.pad18_length")
body19 = doc.addObject("PartDesign::Body", "Body018")

# Sketch on XY plane
sketch19 = body19.newObject("Sketcher::SketchObject", "Sketch018")
sketch19.AttachmentSupport = (doc.getObject("XY_Plane018"), [""])
sketch19.MapMode = "FlatFace"
sketch19.addGeometry(Part.LineSegment(Vector(-32, 22, 0), Vector(-32, -1943, 0)), False)
sketch19.addGeometry(Part.LineSegment(Vector(-32, -1943, 0), Vector(711, -1943, 0)), False)
sketch19.addGeometry(Part.LineSegment(Vector(711, -1943, 0), Vector(711, 22, 0)), False)
sketch19.addGeometry(Part.LineSegment(Vector(711, 22, 0), Vector(-32, 22, 0)), False)
sketch19.addConstraint(Sketcher.Constraint("Coincident", 0, 2, 1, 1))
sketch19.addConstraint(Sketcher.Constraint("Coincident", 1, 2, 2, 1))
sketch19.addConstraint(Sketcher.Constraint("Coincident", 2, 2, 3, 1))
sketch19.addConstraint(Sketcher.Constraint("Coincident", 3, 2, 0, 1))
sketch19.addConstraint(Sketcher.Constraint("Vertical", 0))
sketch19.addConstraint(Sketcher.Constraint("Horizontal", 1))
sketch19.addConstraint(Sketcher.Constraint("Vertical", 2))
sketch19.addConstraint(Sketcher.Constraint("Horizontal", 3))
sketch19.addConstraint(Sketcher.Constraint("DistanceX", -1, 1, 1, 2, Q("28 in")))
sketch19.addConstraint(Sketcher.Constraint("DistanceX", 1, 1, 1, 2, Q("29.25 in")))
sketch19.addConstraint(Sketcher.Constraint("DistanceY", 0, 2, -1, 1, Q("76.5 in")))
sketch19.addConstraint(Sketcher.Constraint("DistanceY", 0, 2, 0, 1, Q("77.375 in")))
sketch19.setExpression("Constraints[9]", "Params.sketch19_width")
sketch19.setExpression("Constraints[11]", "Params.sketch19_height")
pad19 = body19.newObject("PartDesign::Pad", "Pad018")
pad19.Profile = sketch19
pad19.setExpression("Length", "Params.pad19_length")
pad19.Reversed = True
body20 = doc.addObject("PartDesign::Body", "Body019")

# Sketch on XY plane
sketch20 = body20.newObject("Sketcher::SketchObject", "Sketch019")
sketch20.AttachmentSupport = (doc.getObject("XY_Plane019"), [""])
sketch20.MapMode = "FlatFace"
sketch20.addGeometry(Part.LineSegment(Vector(711, 22, 0), Vector(711, -1943, 0)), False)
sketch20.addGeometry(Part.LineSegment(Vector(711, -1943, 0), Vector(1454, -1943, 0)), False)
sketch20.addGeometry(Part.LineSegment(Vector(1454, -1943, 0), Vector(1454, 22, 0)), False)
sketch20.addGeometry(Part.LineSegment(Vector(1454, 22, 0), Vector(711, 22, 0)), False)
sketch20.addConstraint(Sketcher.Constraint("Coincident", 0, 2, 1, 1))
sketch20.addConstraint(Sketcher.Constraint("Coincident", 1, 2, 2, 1))
sketch20.addConstraint(Sketcher.Constraint("Coincident", 2, 2, 3, 1))
sketch20.addConstraint(Sketcher.Constraint("Coincident", 3, 2, 0, 1))
sketch20.addConstraint(Sketcher.Constraint("Vertical", 0))
sketch20.addConstraint(Sketcher.Constraint("Horizontal", 1))
sketch20.addConstraint(Sketcher.Constraint("Vertical", 2))
sketch20.addConstraint(Sketcher.Constraint("Horizontal", 3))
sketch20.addConstraint(Sketcher.Constraint("DistanceX", -1, 1, 0, 2, Q("28 in")))
sketch20.addConstraint(Sketcher.Constraint("DistanceX", 1, 1, 1, 2, Q("29.25 in")))
sketch20.addConstraint(Sketcher.Constraint("DistanceY", 0, 2, -1, 1, Q("76.5 in")))
sketch20.addConstraint(Sketcher.Constraint("DistanceY", 0, 2, 0, 1, Q("77.375 in")))
sketch20.setExpression("Constraints[9]", "Params.sketch20_width")
sketch20.setExpression("Constraints[11]", "Params.sketch20_height")
pad20 = body20.newObject("PartDesign::Pad", "Pad019")
pad20.Profile = sketch20
pad20.setExpression("Length", "Params.pad20_length")
pad20.Reversed = True
body21 = doc.addObject("PartDesign::Body", "Body020")

# Sketch on YZ plane
sketch21 = body21.newObject("Sketcher::SketchObject", "Sketch020")
sketch21.AttachmentSupport = (doc.getObject("YZ_Plane020"), [""])
sketch21.MapMode = "FlatFace"
sketch21.AttachmentOffset = App.Placement(Vector(0, 0, 56 * 25.4), App.Rotation())
sketch21.addGeometry(Part.Circle(Vector(-210, 89, 0), Vector(0, 0, 1), 10), False)
sketch21.addConstraint(Sketcher.Constraint("Diameter", 0, Q("0.75 in")))
sketch21.addConstraint(Sketcher.Constraint("DistanceY", -1, 1, 0, 3, Q("3.5 in")))
sketch21.addConstraint(Sketcher.Constraint("DistanceX", 0, 3, -1, 1, Q("8.25 in")))
sketch21.setExpression("Constraints[0]", "Params.sketch21_diameter")
pad21 = body21.newObject("PartDesign::Pad", "Pad020")
pad21.Profile = sketch21
pad21.Type = "TwoLengths"
pad21.setExpression("Length", "Params.pad21_length")
pad21.setExpression("Length2", "Params.pad21_length2")
doc.recompute()

body22 = doc.addObject("PartDesign::Body", "Body021")
body22.BaseFeature = body21
boolean = body17.newObject("PartDesign::Boolean", "Boolean")
boolean.Type = "Cut"
boolean.addObjects([body22])
doc.recompute()

boolean2 = body18.newObject("PartDesign::Boolean", "Boolean001")
boolean2.Type = "Cut"
boolean2.addObjects([body21])

doc.recompute()
